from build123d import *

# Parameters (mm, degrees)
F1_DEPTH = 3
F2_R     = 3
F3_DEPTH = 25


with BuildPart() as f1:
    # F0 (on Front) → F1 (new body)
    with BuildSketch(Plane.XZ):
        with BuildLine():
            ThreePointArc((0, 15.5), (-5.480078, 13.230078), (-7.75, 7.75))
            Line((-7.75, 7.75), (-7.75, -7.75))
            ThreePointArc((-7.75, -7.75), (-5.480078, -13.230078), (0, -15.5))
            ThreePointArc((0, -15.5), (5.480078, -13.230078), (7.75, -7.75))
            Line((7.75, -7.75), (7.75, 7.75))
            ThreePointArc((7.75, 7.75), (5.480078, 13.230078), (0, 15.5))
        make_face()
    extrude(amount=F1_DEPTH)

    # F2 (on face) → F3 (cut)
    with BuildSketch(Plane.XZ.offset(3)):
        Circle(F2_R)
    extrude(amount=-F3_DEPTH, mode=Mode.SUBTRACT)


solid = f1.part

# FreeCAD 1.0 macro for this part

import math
import FreeCAD as App
import Part
import Sketcher
from FreeCAD import Vector

doc = App.newDocument("Part")
body = doc.addObject("PartDesign::Body", "Body")

sketch1 = doc.addObject("Sketcher::SketchObject", "Sketch")
body.addObject(sketch1)
sketch1.AttachmentSupport = (doc.XZ_Plane, [""])
sketch1.MapMode = "FlatFace"
sketch1.addGeometry([
    Part.ArcOfCircle(Part.Circle(Vector(0, 8, 0), Vector(0, 0, 1), 8), math.radians(90), math.radians(180)),
    Part.LineSegment(Vector(-8, 8, 0), Vector(-8, -8, 0)),
    Part.ArcOfCircle(Part.Circle(Vector(0, -8, 0), Vector(0, 0, 1), 8), math.radians(180), math.radians(270)),
    Part.ArcOfCircle(Part.Circle(Vector(0, -8, 0), Vector(0, 0, 1), 8), math.radians(-90), math.radians(0)),
    Part.LineSegment(Vector(8, -8, 0), Vector(8, 8, 0)),
    Part.ArcOfCircle(Part.Circle(Vector(0, 8, 0), Vector(0, 0, 1), 8), math.radians(0), math.radians(90)),
], False)
sketch1.addConstraint([
    Sketcher.Constraint("Tangent", 0, 2, 1, 1),
    Sketcher.Constraint("Tangent", 1, 2, 2, 1),
    Sketcher.Constraint("Tangent", 2, 2, 3, 1),
    Sketcher.Constraint("Tangent", 3, 2, 4, 1),
    Sketcher.Constraint("Tangent", 4, 2, 5, 1),
    Sketcher.Constraint("Tangent", 5, 2, 0, 1),
    Sketcher.Constraint("Vertical", 1),
    Sketcher.Constraint("Vertical", 4),
    Sketcher.Constraint("Equal", 0, 2),
    Sketcher.Constraint("Equal", 2, 3),
    Sketcher.Constraint("Symmetric", 0, 3, 2, 3, -1, 1),
    Sketcher.Constraint("PointOnObject", 2, 2, -2),
    Sketcher.Constraint("PointOnObject", 5, 2, -2),
    Sketcher.Constraint("Radius", 0, 7.749998),
    Sketcher.Constraint("DistanceY", 1, 2, 1, 1, 15.5),
])
pad1 = doc.addObject("PartDesign::Pad", "Pad")
body.addObject(pad1)
pad1.Profile = sketch1
pad1.Length = 3

sketch2 = doc.addObject("Sketcher::SketchObject", "Sketch001")
body.addObject(sketch2)
sketch2.AttachmentSupport = (doc.XZ_Plane, [""])
sketch2.MapMode = "FlatFace"
sketch2.AttachmentOffset = App.Placement(Vector(0, 0, 3), App.Rotation())
sketch2.addGeometry(Part.Circle(Vector(0, 0, 0), Vector(0, 0, 1), 3), False)
sketch2.addConstraint([
    Sketcher.Constraint("Coincident", 0, 3, -1, 1),
    Sketcher.Constraint("Diameter", 0, 6.0),
])
pocket1 = doc.addObject("PartDesign::Pocket", "Pocket")
body.addObject(pocket1)
pocket1.Profile = sketch2
pocket1.Length = 25

doc.recompute()
